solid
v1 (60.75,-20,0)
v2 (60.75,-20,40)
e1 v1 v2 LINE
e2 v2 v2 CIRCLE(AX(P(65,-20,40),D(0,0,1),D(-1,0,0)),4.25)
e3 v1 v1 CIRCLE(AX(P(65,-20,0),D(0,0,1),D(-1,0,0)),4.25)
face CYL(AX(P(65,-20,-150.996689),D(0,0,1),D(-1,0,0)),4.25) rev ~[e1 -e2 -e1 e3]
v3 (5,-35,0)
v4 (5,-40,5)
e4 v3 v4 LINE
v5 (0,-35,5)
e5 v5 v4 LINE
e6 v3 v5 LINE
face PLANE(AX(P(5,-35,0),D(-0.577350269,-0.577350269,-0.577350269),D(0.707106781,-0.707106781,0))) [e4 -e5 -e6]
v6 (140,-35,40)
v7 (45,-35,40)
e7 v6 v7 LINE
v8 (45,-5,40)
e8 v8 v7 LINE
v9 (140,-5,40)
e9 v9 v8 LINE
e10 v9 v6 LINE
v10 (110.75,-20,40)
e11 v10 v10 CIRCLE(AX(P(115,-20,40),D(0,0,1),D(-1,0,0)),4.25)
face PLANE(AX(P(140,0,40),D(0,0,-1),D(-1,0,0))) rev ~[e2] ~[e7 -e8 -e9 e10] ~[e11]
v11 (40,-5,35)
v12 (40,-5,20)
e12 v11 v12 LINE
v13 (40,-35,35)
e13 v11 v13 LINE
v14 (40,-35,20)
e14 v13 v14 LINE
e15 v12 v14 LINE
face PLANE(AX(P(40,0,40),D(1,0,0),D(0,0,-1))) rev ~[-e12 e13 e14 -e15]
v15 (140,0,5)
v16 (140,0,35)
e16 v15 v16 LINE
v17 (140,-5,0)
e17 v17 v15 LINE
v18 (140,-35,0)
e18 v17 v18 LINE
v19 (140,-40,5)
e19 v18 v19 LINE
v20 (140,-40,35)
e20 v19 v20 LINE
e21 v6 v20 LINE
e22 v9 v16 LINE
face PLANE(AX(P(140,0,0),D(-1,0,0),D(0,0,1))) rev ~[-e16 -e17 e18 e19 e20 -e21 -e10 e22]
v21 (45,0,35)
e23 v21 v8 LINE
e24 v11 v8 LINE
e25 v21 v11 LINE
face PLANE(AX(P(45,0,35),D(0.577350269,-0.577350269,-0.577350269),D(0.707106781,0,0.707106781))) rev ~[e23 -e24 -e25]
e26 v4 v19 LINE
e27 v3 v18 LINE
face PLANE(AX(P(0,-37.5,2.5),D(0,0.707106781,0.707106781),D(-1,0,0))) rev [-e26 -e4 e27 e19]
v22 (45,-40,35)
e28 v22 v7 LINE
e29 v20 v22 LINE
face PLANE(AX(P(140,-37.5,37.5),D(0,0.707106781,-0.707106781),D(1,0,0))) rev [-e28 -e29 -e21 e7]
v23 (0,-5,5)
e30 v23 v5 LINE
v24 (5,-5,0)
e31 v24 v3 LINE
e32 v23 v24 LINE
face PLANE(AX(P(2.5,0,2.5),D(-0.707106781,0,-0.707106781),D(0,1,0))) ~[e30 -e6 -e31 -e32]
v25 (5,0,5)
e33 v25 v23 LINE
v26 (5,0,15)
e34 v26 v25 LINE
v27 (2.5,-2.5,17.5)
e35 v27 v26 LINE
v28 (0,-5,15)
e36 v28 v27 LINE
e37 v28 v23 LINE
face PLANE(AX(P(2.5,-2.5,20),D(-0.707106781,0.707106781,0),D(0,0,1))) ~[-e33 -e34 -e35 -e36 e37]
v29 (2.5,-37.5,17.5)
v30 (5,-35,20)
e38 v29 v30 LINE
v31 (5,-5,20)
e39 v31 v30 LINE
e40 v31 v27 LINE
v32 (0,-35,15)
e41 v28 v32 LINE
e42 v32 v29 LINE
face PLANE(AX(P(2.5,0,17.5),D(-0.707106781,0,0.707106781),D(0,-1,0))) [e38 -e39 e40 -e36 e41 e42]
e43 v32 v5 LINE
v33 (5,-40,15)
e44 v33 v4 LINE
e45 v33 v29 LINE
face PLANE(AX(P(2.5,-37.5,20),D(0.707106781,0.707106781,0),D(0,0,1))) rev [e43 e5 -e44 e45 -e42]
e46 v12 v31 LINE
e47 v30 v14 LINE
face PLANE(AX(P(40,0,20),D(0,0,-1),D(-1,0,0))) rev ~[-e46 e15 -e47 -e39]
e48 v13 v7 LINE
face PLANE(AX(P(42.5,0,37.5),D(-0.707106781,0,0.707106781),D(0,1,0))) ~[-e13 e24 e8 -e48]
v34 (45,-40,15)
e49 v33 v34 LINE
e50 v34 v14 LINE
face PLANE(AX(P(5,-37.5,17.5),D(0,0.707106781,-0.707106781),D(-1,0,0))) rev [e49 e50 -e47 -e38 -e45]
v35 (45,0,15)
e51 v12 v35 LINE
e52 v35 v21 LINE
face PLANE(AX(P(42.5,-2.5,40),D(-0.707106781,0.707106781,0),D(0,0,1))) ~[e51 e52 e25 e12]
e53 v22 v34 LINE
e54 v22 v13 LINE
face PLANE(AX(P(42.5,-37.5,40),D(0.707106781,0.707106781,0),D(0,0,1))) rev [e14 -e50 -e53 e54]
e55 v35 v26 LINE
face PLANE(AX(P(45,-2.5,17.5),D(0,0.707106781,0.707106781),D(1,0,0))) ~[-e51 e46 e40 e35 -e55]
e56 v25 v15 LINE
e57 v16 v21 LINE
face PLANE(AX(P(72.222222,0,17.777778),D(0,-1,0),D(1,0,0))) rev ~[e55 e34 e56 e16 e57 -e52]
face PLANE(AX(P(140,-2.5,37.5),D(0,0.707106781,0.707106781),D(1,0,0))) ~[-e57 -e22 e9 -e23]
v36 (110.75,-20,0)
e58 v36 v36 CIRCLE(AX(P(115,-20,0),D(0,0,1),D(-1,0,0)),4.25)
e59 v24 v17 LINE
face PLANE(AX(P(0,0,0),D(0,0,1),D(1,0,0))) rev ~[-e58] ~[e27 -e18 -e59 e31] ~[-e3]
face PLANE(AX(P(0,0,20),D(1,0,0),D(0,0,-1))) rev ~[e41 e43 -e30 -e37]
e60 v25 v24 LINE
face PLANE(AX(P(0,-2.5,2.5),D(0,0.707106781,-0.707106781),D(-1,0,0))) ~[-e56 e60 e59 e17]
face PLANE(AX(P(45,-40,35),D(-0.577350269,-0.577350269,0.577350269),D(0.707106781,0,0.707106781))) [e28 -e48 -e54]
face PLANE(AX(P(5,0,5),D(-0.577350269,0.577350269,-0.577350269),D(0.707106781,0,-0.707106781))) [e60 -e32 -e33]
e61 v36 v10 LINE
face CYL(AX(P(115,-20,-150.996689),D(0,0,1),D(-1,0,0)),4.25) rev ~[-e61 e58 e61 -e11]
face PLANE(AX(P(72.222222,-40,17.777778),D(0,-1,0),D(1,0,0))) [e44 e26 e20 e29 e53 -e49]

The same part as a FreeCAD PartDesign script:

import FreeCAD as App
import Part
import Sketcher


def edges_at(feature, points):
    """Names of the edges that pass closest to the given points."""
    edges = feature.Shape.Edges
    near = lambda p: min(range(len(edges)), key=lambda i: edges[i].distToShape(Part.Vertex(*p))[0])
    return sorted({f"Edge{near(p) + 1}" for p in points})


def add_polygon(sketch, points):
    """Adds a closed chain of lines whose ends are joined by coincident constraints."""
    first, n = sketch.GeometryCount, len(points)
    for a, b in zip(points, points[1:] + points[:1]):
        sketch.addGeometry(Part.LineSegment(App.Vector(*a, 0), App.Vector(*b, 0)), False)
    for i in range(n):
        sketch.addConstraint(Sketcher.Constraint("Coincident", first + i, 2, first + (i + 1) % n, 1))

doc = App.newDocument("Part")
params = doc.addObject("Spreadsheet::Sheet", "Params")
for row, (alias, value) in enumerate([
    ("sketch1_width", "140 mm"),
    ("sketch1_width2", "100 mm"),
    ("pad1_length", "40 mm"),
    ("chamfer_size", "5 mm"),
    ("sketch2_diameter", "8.5 mm"),
    ("hole_diameter", "8.5 mm"),
    ("sketch3_diameter", "8.5 mm"),
    ("hole2_diameter", "8.5 mm"),
    ("chamfer2_size", "5 mm"),
    ("chamfer3_size", "5 mm"),
], start=1):
    params.set(f"A{row}", alias)
    params.set(f"B{row}", "=" + value)
    params.setAlias(f"B{row}", alias)

body = doc.addObject("PartDesign::Body", "Body")

# Sketch on XZ plane
sketch1 = body.newObject("Sketcher::SketchObject", "Sketch")
sketch1.AttachmentSupport = (doc.getObject("XZ_Plane"), [""])
sketch1.MapMode = "FlatFace"
add_polygon(sketch1, [(0, 20), (0, 0), (140, 0), (140, 40), (40, 40), (40, 20)])  # lines 0-5
sketch1.addConstraint(Sketcher.Constraint("Vertical", 0))
sketch1.addConstraint(Sketcher.Constraint("Horizontal", 1))
sketch1.addConstraint(Sketcher.Constraint("Vertical", 2))
sketch1.addConstraint(Sketcher.Constraint("Horizontal", 3))
sketch1.addConstraint(Sketcher.Constraint("Vertical", 4))
sketch1.addConstraint(Sketcher.Constraint("Horizontal", 5))
sketch1.addConstraint(Sketcher.Constraint("Coincident", 0, 2, -1, 1))
sketch1.addConstraint(Sketcher.Constraint("Equal", 5, 2))
sketch1.addConstraint(Sketcher.Constraint("Equal", 0, 4))
sketch1.addConstraint(Sketcher.Constraint("DistanceX", 1, 1, 1, 2, 140.0))
sketch1.addConstraint(Sketcher.Constraint("DistanceX", 3, 2, 3, 1, 100.0))
sketch1.setExpression("Constraints[15]", "Params.sketch1_width")
sketch1.setExpression("Constraints[16]", "Params.sketch1_width2")
pad1 = body.newObject("PartDesign::Pad", "Pad")
pad1.Profile = sketch1
pad1.setExpression("Length", "Params.pad1_length")
doc.recompute()

chamfer = body.newObject("PartDesign::Chamfer", "Chamfer")
chamfer.Base = (pad1, edges_at(pad1, [
    (40, -20, 40),
    (40, -40, 30),
    (40, 0, 30),
    (0, -20, 20),
    (0, -40, 10),
    (0, -20, 0),
    (0, 0, 10),
    (90, -40, 40),
    (70, -40, 0),
    (90, 0, 40),
    (70, 0, 0),
]))
chamfer.setExpression("Size", "Params.chamfer_size")

# Sketch on XY plane
sketch2 = body.newObject("Sketcher::SketchObject", "Sketch001")
sketch2.AttachmentSupport = (doc.getObject("XY_Plane"), [""])
sketch2.MapMode = "FlatFace"
sketch2.addGeometry(Part.Circle(App.Vector(115, -20, 0), App.Vector(0, 0, 1), 4.2), False)
sketch2.addConstraint(Sketcher.Constraint("Diameter", 0, 8.5))
sketch2.addConstraint(Sketcher.Constraint("DistanceX", -1, 1, 0, 3, 115.0))
sketch2.addConstraint(Sketcher.Constraint("DistanceY", 0, 3, -1, 1, 20.0))
sketch2.setExpression("Constraints[0]", "Params.sketch2_diameter")
doc.recompute()
hole = body.newObject("PartDesign::Hole", "Hole")
hole.Profile = sketch2
hole.ThreadType = "None"
hole.setExpression("Diameter", "Params.hole_diameter")
hole.DepthType = "ThroughAll"
hole.Reversed = True

# Sketch on XY plane
sketch3 = body.newObject("Sketcher::SketchObject", "Sketch002")
sketch3.AttachmentSupport = (doc.getObject("XY_Plane"), [""])
sketch3.MapMode = "FlatFace"
sketch3.addGeometry(Part.Circle(App.Vector(65, -20, 0), App.Vector(0, 0, 1), 4.2), False)
sketch3.addConstraint(Sketcher.Constraint("Diameter", 0, 8.5))
sketch3.addConstraint(Sketcher.Constraint("DistanceX", -1, 1, 0, 3, 65.0))
sketch3.addConstraint(Sketcher.Constraint("DistanceY", 0, 3, -1, 1, 20.0))
sketch3.setExpression("Constraints[0]", "Params.sketch3_diameter")
doc.recompute()
hole2 = body.newObject("PartDesign::Hole", "Hole001")
hole2.Profile = sketch3
hole2.ThreadType = "None"
hole2.setExpression("Diameter", "Params.hole2_diameter")
hole2.DepthType = "ThroughAll"
hole2.Reversed = True
doc.recompute()

chamfer2 = body.newObject("PartDesign::Chamfer", "Chamfer001")
chamfer2.Base = (hole2, edges_at(hole2, [(25, 0, 20)]))
chamfer2.setExpression("Size", "Params.chamfer2_size")
doc.recompute()

chamfer3 = body.newObject("PartDesign::Chamfer", "Chamfer002")
chamfer3.Base = (chamfer2, edges_at(chamfer2, [(25, -40, 20)]))
chamfer3.setExpression("Size", "Params.chamfer3_size")

doc.recompute()
